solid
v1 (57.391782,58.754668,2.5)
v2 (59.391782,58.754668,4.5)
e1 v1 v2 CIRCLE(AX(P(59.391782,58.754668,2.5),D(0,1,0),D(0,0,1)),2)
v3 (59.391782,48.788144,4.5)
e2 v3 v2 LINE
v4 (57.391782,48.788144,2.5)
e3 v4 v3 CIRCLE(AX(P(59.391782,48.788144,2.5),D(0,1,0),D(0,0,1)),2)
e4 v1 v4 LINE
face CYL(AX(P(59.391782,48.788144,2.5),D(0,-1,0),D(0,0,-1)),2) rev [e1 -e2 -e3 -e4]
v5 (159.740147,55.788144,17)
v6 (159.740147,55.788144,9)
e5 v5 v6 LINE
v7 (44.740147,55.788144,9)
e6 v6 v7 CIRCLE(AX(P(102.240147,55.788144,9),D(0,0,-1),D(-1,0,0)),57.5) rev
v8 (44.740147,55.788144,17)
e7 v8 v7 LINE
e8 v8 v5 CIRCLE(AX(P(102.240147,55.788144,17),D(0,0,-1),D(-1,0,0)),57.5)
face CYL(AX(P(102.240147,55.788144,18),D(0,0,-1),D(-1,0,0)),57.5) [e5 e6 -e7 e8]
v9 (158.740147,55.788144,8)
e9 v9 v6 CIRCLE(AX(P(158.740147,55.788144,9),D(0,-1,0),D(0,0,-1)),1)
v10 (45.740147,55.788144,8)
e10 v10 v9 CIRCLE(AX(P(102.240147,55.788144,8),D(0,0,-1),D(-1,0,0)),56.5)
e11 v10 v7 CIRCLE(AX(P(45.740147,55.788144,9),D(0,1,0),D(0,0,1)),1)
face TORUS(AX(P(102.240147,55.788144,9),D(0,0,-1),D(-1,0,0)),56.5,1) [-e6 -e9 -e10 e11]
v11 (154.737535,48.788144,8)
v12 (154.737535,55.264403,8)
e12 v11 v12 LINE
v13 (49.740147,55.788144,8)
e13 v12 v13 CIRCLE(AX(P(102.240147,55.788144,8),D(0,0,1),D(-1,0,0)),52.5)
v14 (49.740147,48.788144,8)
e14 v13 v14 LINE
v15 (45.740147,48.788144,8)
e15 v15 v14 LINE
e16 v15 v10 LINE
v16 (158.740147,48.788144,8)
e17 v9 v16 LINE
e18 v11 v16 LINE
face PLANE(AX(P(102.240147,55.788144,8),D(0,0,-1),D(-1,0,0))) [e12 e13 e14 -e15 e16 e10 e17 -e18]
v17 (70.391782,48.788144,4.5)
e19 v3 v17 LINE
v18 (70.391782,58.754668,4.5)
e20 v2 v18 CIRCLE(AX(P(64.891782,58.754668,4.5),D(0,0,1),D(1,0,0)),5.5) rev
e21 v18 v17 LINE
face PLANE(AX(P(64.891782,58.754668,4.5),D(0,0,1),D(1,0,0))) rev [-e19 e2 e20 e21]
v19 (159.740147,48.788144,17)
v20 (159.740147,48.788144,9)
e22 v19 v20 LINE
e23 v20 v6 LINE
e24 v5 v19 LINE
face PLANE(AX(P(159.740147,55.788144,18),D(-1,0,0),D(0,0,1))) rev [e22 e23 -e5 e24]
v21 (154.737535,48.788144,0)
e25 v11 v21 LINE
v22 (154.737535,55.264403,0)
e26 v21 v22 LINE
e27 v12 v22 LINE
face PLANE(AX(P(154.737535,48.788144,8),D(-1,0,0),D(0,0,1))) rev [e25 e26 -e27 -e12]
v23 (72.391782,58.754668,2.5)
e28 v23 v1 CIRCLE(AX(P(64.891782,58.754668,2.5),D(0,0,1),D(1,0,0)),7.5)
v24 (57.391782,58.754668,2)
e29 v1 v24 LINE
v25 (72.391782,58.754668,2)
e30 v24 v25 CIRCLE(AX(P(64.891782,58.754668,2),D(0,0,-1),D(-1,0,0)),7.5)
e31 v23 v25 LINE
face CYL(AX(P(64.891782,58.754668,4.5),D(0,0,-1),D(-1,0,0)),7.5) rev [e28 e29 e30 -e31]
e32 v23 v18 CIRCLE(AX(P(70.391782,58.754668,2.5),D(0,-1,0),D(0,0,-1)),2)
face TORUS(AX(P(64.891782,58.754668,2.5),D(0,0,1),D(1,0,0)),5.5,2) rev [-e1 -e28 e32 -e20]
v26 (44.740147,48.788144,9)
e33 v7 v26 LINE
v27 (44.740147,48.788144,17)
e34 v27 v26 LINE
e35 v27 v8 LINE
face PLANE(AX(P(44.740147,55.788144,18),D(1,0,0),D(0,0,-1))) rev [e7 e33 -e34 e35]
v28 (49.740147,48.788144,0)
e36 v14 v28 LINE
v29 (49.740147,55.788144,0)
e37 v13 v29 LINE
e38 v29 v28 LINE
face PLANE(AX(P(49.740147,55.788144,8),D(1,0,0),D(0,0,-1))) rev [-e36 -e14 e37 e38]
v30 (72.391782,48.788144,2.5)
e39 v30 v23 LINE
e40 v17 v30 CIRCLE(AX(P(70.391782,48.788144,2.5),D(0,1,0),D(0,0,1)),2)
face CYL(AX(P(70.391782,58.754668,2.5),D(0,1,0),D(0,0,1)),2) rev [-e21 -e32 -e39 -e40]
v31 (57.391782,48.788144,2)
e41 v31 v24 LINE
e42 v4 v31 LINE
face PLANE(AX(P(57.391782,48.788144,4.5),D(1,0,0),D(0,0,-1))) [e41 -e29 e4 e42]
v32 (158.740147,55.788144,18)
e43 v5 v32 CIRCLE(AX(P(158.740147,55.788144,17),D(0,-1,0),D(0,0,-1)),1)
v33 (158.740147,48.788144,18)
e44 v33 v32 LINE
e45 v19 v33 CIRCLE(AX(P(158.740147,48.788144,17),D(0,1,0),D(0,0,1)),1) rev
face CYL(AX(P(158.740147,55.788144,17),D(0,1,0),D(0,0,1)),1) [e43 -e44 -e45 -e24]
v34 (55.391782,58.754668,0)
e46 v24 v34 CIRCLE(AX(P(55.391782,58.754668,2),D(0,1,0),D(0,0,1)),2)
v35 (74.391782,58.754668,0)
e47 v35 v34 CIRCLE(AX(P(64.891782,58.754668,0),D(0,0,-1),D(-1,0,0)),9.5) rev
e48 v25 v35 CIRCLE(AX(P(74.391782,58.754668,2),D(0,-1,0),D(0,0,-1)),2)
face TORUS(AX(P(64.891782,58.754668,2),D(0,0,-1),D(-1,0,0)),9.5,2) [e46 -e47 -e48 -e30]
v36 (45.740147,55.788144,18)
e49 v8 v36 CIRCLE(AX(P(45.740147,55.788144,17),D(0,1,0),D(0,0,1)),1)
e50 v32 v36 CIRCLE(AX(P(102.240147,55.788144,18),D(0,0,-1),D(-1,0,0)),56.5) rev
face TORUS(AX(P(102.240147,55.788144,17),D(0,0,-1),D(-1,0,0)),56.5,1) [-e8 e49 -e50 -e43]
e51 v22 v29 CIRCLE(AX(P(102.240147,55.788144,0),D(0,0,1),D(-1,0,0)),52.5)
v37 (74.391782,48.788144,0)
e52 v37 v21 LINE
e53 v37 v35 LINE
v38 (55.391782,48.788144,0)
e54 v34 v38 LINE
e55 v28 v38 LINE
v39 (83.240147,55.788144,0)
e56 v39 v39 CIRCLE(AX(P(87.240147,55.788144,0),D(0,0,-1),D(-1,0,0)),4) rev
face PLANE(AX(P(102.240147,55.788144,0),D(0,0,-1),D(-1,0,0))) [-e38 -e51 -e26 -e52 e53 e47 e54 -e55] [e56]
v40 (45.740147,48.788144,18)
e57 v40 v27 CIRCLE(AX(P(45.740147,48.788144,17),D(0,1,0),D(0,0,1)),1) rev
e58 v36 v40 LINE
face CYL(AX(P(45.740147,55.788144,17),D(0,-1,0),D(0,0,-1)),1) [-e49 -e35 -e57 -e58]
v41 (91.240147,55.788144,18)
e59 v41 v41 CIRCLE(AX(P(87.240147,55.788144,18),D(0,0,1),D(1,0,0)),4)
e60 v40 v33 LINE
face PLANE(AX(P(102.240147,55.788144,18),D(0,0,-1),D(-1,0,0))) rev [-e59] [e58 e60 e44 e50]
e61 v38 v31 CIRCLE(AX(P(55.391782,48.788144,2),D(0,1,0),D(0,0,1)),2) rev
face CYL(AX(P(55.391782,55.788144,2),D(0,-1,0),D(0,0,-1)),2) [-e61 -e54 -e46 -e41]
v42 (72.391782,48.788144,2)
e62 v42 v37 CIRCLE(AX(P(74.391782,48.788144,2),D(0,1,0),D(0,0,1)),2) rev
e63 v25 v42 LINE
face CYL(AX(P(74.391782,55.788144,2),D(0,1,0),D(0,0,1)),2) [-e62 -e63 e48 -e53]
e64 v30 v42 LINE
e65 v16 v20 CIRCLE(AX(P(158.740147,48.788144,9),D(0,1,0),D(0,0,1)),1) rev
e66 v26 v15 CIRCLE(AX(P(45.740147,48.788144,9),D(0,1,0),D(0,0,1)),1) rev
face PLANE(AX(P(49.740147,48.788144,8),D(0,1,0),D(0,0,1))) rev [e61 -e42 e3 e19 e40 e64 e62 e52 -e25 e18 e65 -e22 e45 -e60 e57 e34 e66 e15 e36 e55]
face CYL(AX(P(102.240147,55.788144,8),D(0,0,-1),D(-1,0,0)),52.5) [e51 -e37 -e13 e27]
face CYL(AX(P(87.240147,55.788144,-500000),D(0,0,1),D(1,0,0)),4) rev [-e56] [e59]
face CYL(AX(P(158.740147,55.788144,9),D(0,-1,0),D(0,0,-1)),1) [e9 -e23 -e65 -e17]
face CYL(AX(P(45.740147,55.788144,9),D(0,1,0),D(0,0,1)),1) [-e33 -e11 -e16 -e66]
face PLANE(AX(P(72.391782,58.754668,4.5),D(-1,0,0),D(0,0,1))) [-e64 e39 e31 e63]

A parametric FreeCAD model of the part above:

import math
import FreeCAD as App
import Part
import Sketcher

V = App.Vector


def edges_at(feature, points):
    """Names of the edges that pass closest to the given points."""
    edges = feature.Shape.Edges
    near = lambda p: min(range(len(edges)), key=lambda i: edges[i].distToShape(Part.Vertex(*p))[0])
    return sorted({f"Edge{near(p) + 1}" for p in points})

doc = App.newDocument("Part")
params = doc.addObject("Spreadsheet::Sheet", "Params")
for row, (alias, value) in enumerate([
    ("sketch1_radius", "52.5 mm"),
    ("sketch1_height", "7 mm"),
    ("pad1_length", "8 mm"),
    ("sketch2_radius", "57.5 mm"),
    ("sketch2_height", "7 mm"),
    ("pad2_length", "10 mm"),
    ("sketch3_diameter", "8 mm"),
    ("fillet_radius", "1 mm"),
    ("sketch4_radius", "7.5 mm"),
    ("pocket2_length", "4.5 mm"),
    ("fillet2_radius", "2 mm"),
], start=1):
    params.set(f"A{row}", alias)
    params.set(f"B{row}", "=" + value)
    params.setAlias(f"B{row}", alias)

body = doc.addObject("PartDesign::Body", "Body")

# Sketch on XY plane
sketch1 = doc.addObject("Sketcher::SketchObject", "Sketch")
body.addObject(sketch1)
sketch1.AttachmentSupport = (doc.XY_Plane, [""])
sketch1.MapMode = "FlatFace"
sketch1.addGeometry(Part.LineSegment(V(50, 56, 0), V(50, 49, 0)), False)
sketch1.addGeometry(Part.LineSegment(V(50, 49, 0), V(155, 49, 0)), False)
sketch1.addGeometry(Part.LineSegment(V(155, 49, 0), V(155, 55, 0)), False)
sketch1.addGeometry(Part.ArcOfCircle(Part.Circle(V(102, 56, 0), V(0, 0, 1), 52), math.radians(-1), math.radians(180)), False)
sketch1.addConstraint(Sketcher.Constraint("Coincident", 0, 2, 1, 1))
sketch1.addConstraint(Sketcher.Constraint("Coincident", 1, 2, 2, 1))
sketch1.addConstraint(Sketcher.Constraint("Coincident", 2, 2, 3, 1))
sketch1.addConstraint(Sketcher.Constraint("Tangent", 3, 2, 0, 1))
sketch1.addConstraint(Sketcher.Constraint("Vertical", 0))
sketch1.addConstraint(Sketcher.Constraint("Horizontal", 1))
sketch1.addConstraint(Sketcher.Constraint("Vertical", 2))
sketch1.addConstraint(Sketcher.Constraint("Radius", 3, 52.5))
sketch1.addConstraint(Sketcher.Constraint("DistanceY", 0, 2, 0, 1, 7.0))
sketch1.addConstraint(Sketcher.Constraint("DistanceY", 2, 1, 2, 2, 6.476259))
sketch1.addConstraint(Sketcher.Constraint("DistanceX", -1, 1, 3, 3, 102.240147))
sketch1.addConstraint(Sketcher.Constraint("DistanceY", -1, 1, 3, 3, 55.788144))
sketch1.setExpression("Constraints[7]", "Params.sketch1_radius")
sketch1.setExpression("Constraints[8]", "Params.sketch1_height")
pad1 = doc.addObject("PartDesign::Pad", "Pad")
body.addObject(pad1)
pad1.Profile = sketch1
pad1.setExpression("Length", "Params.pad1_length")

# Sketch on XY plane
sketch2 = doc.addObject("Sketcher::SketchObject", "Sketch001")
body.addObject(sketch2)
sketch2.AttachmentSupport = (doc.XY_Plane, [""])
sketch2.MapMode = "FlatFace"
sketch2.AttachmentOffset = App.Placement(V(0, 0, 8), App.Rotation())
sketch2.addGeometry(Part.LineSegment(V(160, 49, 0), V(160, 56, 0)), False)
sketch2.addGeometry(Part.ArcOfCircle(Part.Circle(V(102, 56, 0), V(0, 0, 1), 58), math.radians(0), math.radians(180)), False)
sketch2.addGeometry(Part.LineSegment(V(45, 56, 0), V(45, 49, 0)), False)
sketch2.addGeometry(Part.LineSegment(V(45, 49, 0), V(160, 49, 0)), False)
sketch2.addConstraint(Sketcher.Constraint("Tangent", 0, 2, 1, 1))
sketch2.addConstraint(Sketcher.Constraint("Tangent", 1, 2, 2, 1))
sketch2.addConstraint(Sketcher.Constraint("Coincident", 2, 2, 3, 1))
sketch2.addConstraint(Sketcher.Constraint("Coincident", 3, 2, 0, 1))
sketch2.addConstraint(Sketcher.Constraint("Vertical", 0))
sketch2.addConstraint(Sketcher.Constraint("Vertical", 2))
sketch2.addConstraint(Sketcher.Constraint("Horizontal", 3))
sketch2.addConstraint(Sketcher.Constraint("Radius", 1, 57.5))
sketch2.addConstraint(Sketcher.Constraint("DistanceY", 0, 1, 0, 2, 7.0))
sketch2.addConstraint(Sketcher.Constraint("DistanceX", -1, 1, 1, 3, 102.240147))
sketch2.addConstraint(Sketcher.Constraint("DistanceY", -1, 1, 1, 3, 55.788144))
sketch2.setExpression("Constraints[7]", "Params.sketch2_radius")
sketch2.setExpression("Constraints[8]", "Params.sketch2_height")
pad2 = doc.addObject("PartDesign::Pad", "Pad001")
body.addObject(pad2)
pad2.Profile = sketch2
pad2.setExpression("Length", "Params.pad2_length")

# Sketch on XY plane
sketch3 = doc.addObject("Sketcher::SketchObject", "Sketch002")
body.addObject(sketch3)
sketch3.AttachmentSupport = (doc.XY_Plane, [""])
sketch3.MapMode = "FlatFace"
sketch3.AttachmentOffset = App.Placement(V(0, 0, 18), App.Rotation())
sketch3.addGeometry(Part.Circle(V(87.2, 55.8, 0), V(0, 0, 1), 4), False)
sketch3.addConstraint(Sketcher.Constraint("Diameter", 0, 8.0))
sketch3.addConstraint(Sketcher.Constraint("DistanceX", -1, 1, 0, 3, 87.240147))
sketch3.addConstraint(Sketcher.Constraint("DistanceY", -1, 1, 0, 3, 55.788144))
sketch3.setExpression("Constraints[0]", "Params.sketch3_diameter")
pocket1 = doc.addObject("PartDesign::Pocket", "Pocket")
body.addObject(pocket1)
pocket1.Profile = sketch3
pocket1.Type = "UpToFirst"
doc.recompute()

fillet = doc.addObject("PartDesign::Fillet", "Fillet")
body.addObject(fillet)
fillet.Base = (pocket1, edges_at(pocket1, [
    (159.74, 52.288, 8),
    (44.74, 52.288, 8),
    (159.74, 52.288, 18),
    (44.74, 52.288, 18),
    (102.24, 113.288, 8),
    (102.24, 113.288, 18),
]))
fillet.setExpression("Radius", "Params.fillet_radius")

# Sketch on XY plane
sketch4 = doc.addObject("Sketcher::SketchObject", "Sketch003")
body.addObject(sketch4)
sketch4.AttachmentSupport = (doc.XY_Plane, [""])
sketch4.MapMode = "FlatFace"
sketch4.addGeometry(Part.LineSegment(V(57, 49, 0), V(72, 49, 0)), False)
sketch4.addGeometry(Part.LineSegment(V(72, 49, 0), V(72, 59, 0)), False)
sketch4.addGeometry(Part.ArcOfCircle(Part.Circle(V(65, 59, 0), V(0, 0, 1), 8), math.radians(0), math.radians(180)), False)
sketch4.addGeometry(Part.LineSegment(V(57, 59, 0), V(57, 49, 0)), False)
sketch4.addConstraint(Sketcher.Constraint("Coincident", 0, 2, 1, 1))
sketch4.addConstraint(Sketcher.Constraint("Tangent", 1, 2, 2, 1))
sketch4.addConstraint(Sketcher.Constraint("Tangent", 2, 2, 3, 1))
sketch4.addConstraint(Sketcher.Constraint("Coincident", 3, 2, 0, 1))
sketch4.addConstraint(Sketcher.Constraint("Horizontal", 0))
sketch4.addConstraint(Sketcher.Constraint("Vertical", 1))
sketch4.addConstraint(Sketcher.Constraint("Vertical", 3))
sketch4.addConstraint(Sketcher.Constraint("Radius", 2, 7.5))
sketch4.addConstraint(Sketcher.Constraint("DistanceY", 1, 1, 1, 2, 9.966524))
sketch4.addConstraint(Sketcher.Constraint("DistanceY", -1, 1, 2, 3, 58.754668))
sketch4.addConstraint(Sketcher.Constraint("DistanceX", -1, 1, 2, 3, 64.891782))
sketch4.setExpression("Constraints[7]", "Params.sketch4_radius")
pocket2 = doc.addObject("PartDesign::Pocket", "Pocket001")
body.addObject(pocket2)
pocket2.Profile = sketch4
pocket2.setExpression("Length", "Params.pocket2_length")
pocket2.Reversed = True
doc.recompute()

fillet2 = doc.addObject("PartDesign::Fillet", "Fillet001")
body.addObject(fillet2)
fillet2.Base = (pocket2, edges_at(pocket2, [
    (64.892, 66.255, 0),
    (57.392, 53.771, 0),
    (72.392, 53.771, 0),
    (64.892, 66.255, 4.5),
    (57.392, 53.771, 4.5),
    (72.392, 53.771, 4.5),
]))
fillet2.setExpression("Radius", "Params.fillet2_radius")

doc.recompute()
